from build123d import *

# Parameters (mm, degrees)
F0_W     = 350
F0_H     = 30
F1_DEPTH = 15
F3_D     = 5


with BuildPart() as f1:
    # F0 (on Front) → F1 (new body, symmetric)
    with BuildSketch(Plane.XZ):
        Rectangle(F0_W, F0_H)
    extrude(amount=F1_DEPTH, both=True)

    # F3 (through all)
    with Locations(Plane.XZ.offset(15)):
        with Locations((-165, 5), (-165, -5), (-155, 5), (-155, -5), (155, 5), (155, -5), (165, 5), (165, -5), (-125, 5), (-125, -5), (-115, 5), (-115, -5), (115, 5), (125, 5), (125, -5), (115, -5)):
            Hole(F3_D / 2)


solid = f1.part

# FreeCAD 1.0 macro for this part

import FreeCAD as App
import Part
import Sketcher
Q = App.Units.Quantity

doc = App.newDocument("Part")
params = doc.addObject("Spreadsheet::Sheet", "Params")
for row, (alias, value) in enumerate([
    ("sketch1_width", "350 mm"),
    ("sketch1_height", "30 mm"),
    ("pad1_length", "30 mm"),
    ("sketch2_diameter", "5 mm"),
    ("hole_diameter", "5 mm"),
], start=1):
    params.set(f"A{row}", alias)
    params.set(f"B{row}", "=" + value)
    params.setAlias(f"B{row}", alias)

body = doc.addObject("PartDesign::Body", "Body")

sketch1 = body.newObject("Sketcher::SketchObject", "Sketch")
sketch1.AttachmentSupport = (doc.getObject("XZ_Plane"), [""])
sketch1.MapMode = "FlatFace"
sketch1.addGeometry(Part.LineSegment(App.Vector(-175, 15, 0), App.Vector(-175, -15, 0)), False)
sketch1.addGeometry(Part.LineSegment(App.Vector(-175, -15, 0), App.Vector(175, -15, 0)), False)
sketch1.addGeometry(Part.LineSegment(App.Vector(175, -15, 0), App.Vector(175, 15, 0)), False)
sketch1.addGeometry(Part.LineSegment(App.Vector(175, 15, 0), App.Vector(-175, 15, 0)), False)
sketch1.addConstraint(Sketcher.Constraint("Coincident", 0, 2, 1, 1))
sketch1.addConstraint(Sketcher.Constraint("Coincident", 1, 2, 2, 1))
sketch1.addConstraint(Sketcher.Constraint("Coincident", 2, 2, 3, 1))
sketch1.addConstraint(Sketcher.Constraint("Coincident", 3, 2, 0, 1))
sketch1.addConstraint(Sketcher.Constraint("Vertical", 0))
sketch1.addConstraint(Sketcher.Constraint("Horizontal", 1))
sketch1.addConstraint(Sketcher.Constraint("Vertical", 2))
sketch1.addConstraint(Sketcher.Constraint("Horizontal", 3))
sketch1.addConstraint(Sketcher.Constraint("Symmetric", 0, 2, 2, 2, -1, 1))
sketch1.addConstraint(Sketcher.Constraint("DistanceX", 1, 1, 1, 2, Q("350 mm")))
sketch1.addConstraint(Sketcher.Constraint("DistanceY", 0, 2, 0, 1, Q("30 mm")))
sketch1.setExpression("Constraints[9]", "Params.sketch1_width")
sketch1.setExpression("Constraints[10]", "Params.sketch1_height")
pad1 = body.newObject("PartDesign::Pad", "Pad")
pad1.Profile = sketch1
pad1.setExpression("Length", "Params.pad1_length")
pad1.Midplane = True

sketch2 = body.newObject("Sketcher::SketchObject", "Sketch001")
sketch2.AttachmentSupport = (doc.getObject("XZ_Plane"), [""])
sketch2.MapMode = "FlatFace"
sketch2.AttachmentOffset = App.Placement(App.Vector(0, 0, 15), App.Rotation())
sketch2.addGeometry(Part.Circle(App.Vector(-165, 5, 0), App.Vector(0, 0, 1), 2.5), False)
sketch2.addGeometry(Part.Circle(App.Vector(-165, -5, 0), App.Vector(0, 0, 1), 2.5), False)
sketch2.addGeometry(Part.Circle(App.Vector(-155, 5, 0), App.Vector(0, 0, 1), 2.5), False)
sketch2.addGeometry(Part.Circle(App.Vector(-155, -5, 0), App.Vector(0, 0, 1), 2.5), False)
sketch2.addGeometry(Part.Circle(App.Vector(155, 5, 0), App.Vector(0, 0, 1), 2.5), False)
sketch2.addGeometry(Part.Circle(App.Vector(155, -5, 0), App.Vector(0, 0, 1), 2.5), False)
sketch2.addGeometry(Part.Circle(App.Vector(165, 5, 0), App.Vector(0, 0, 1), 2.5), False)
sketch2.addGeometry(Part.Circle(App.Vector(165, -5, 0), App.Vector(0, 0, 1), 2.5), False)
sketch2.addGeometry(Part.Circle(App.Vector(-125, 5, 0), App.Vector(0, 0, 1), 2.5), False)
sketch2.addGeometry(Part.Circle(App.Vector(-125, -5, 0), App.Vector(0, 0, 1), 2.5), False)
sketch2.addGeometry(Part.Circle(App.Vector(-115, 5, 0), App.Vector(0, 0, 1), 2.5), False)
sketch2.addGeometry(Part.Circle(App.Vector(-115, -5, 0), App.Vector(0, 0, 1), 2.5), False)
sketch2.addGeometry(Part.Circle(App.Vector(115, 5, 0), App.Vector(0, 0, 1), 2.5), False)
sketch2.addGeometry(Part.Circle(App.Vector(125, 5, 0), App.Vector(0, 0, 1), 2.5), False)
sketch2.addGeometry(Part.Circle(App.Vector(125, -5, 0), App.Vector(0, 0, 1), 2.5), False)
sketch2.addGeometry(Part.Circle(App.Vector(115, -5, 0), App.Vector(0, 0, 1), 2.5), False)
sketch2.addConstraint(Sketcher.Constraint("Equal", 0, 1))
sketch2.addConstraint(Sketcher.Constraint("Equal", 1, 2))
sketch2.addConstraint(Sketcher.Constraint("Equal", 2, 3))
sketch2.addConstraint(Sketcher.Constraint("Equal", 3, 4))
sketch2.addConstraint(Sketcher.Constraint("Equal", 4, 5))
sketch2.addConstraint(Sketcher.Constraint("Equal", 5, 6))
sketch2.addConstraint(Sketcher.Constraint("Equal", 6, 7))
sketch2.addConstraint(Sketcher.Constraint("Equal", 7, 8))
sketch2.addConstraint(Sketcher.Constraint("Equal", 8, 9))
sketch2.addConstraint(Sketcher.Constraint("Equal", 9, 10))
sketch2.addConstraint(Sketcher.Constraint("Equal", 10, 11))
sketch2.addConstraint(Sketcher.Constraint("Equal", 11, 12))
sketch2.addConstraint(Sketcher.Constraint("Equal", 12, 13))
sketch2.addConstraint(Sketcher.Constraint("Equal", 13, 14))
sketch2.addConstraint(Sketcher.Constraint("Equal", 14, 15))
sketch2.addConstraint(Sketcher.Constraint("Symmetric", 3, 3, 4, 3, -1, 1))
sketch2.addConstraint(Sketcher.Constraint("Symmetric", 2, 3, 5, 3, -1, 1))
sketch2.addConstraint(Sketcher.Constraint("Symmetric", 1, 3, 6, 3, -1, 1))
sketch2.addConstraint(Sketcher.Constraint("Symmetric", 0, 3, 7, 3, -1, 1))
sketch2.addConstraint(Sketcher.Constraint("Symmetric", 11, 3, 12, 3, -1, 1))
sketch2.addConstraint(Sketcher.Constraint("Symmetric", 9, 3, 13, 3, -1, 1))
sketch2.addConstraint(Sketcher.Constraint("Symmetric", 8, 3, 14, 3, -1, 1))
sketch2.addConstraint(Sketcher.Constraint("Symmetric", 10, 3, 15, 3, -1, 1))
sketch2.addConstraint(Sketcher.Constraint("Symmetric", 2, 3, 4, 3, -2))
sketch2.addConstraint(Sketcher.Constraint("Symmetric", 0, 3, 6, 3, -2))
sketch2.addConstraint(Sketcher.Constraint("Symmetric", 10, 3, 12, 3, -2))
sketch2.addConstraint(Sketcher.Constraint("Symmetric", 8, 3, 13, 3, -2))
sketch2.addConstraint(Sketcher.Constraint("Horizontal", 0, 3, 2, 3))
sketch2.addConstraint(Sketcher.Constraint("Horizontal", 6, 3, 8, 3))
sketch2.addConstraint(Sketcher.Constraint("Horizontal", 8, 3, 10, 3))
sketch2.addConstraint(Sketcher.Constraint("Diameter", 0, Q("5 mm")))
sketch2.addConstraint(Sketcher.Constraint("DistanceX", 0, 3, -1, 1, Q("165 mm")))
sketch2.addConstraint(Sketcher.Constraint("DistanceY", -1, 1, 0, 3, Q("5 mm")))
sketch2.addConstraint(Sketcher.Constraint("DistanceX", 2, 3, -1, 1, Q("155 mm")))
sketch2.addConstraint(Sketcher.Constraint("DistanceX", 8, 3, -1, 1, Q("125 mm")))
sketch2.addConstraint(Sketcher.Constraint("DistanceX", 10, 3, -1, 1, Q("115 mm")))
sketch2.setExpression("Constraints[30]", "Params.sketch2_diameter")
doc.recompute()
hole = body.newObject("PartDesign::Hole", "Hole")
hole.Profile = sketch2
hole.ThreadType = "None"
hole.setExpression("Diameter", "Params.hole_diameter")
hole.DepthType = "ThroughAll"

doc.recompute()
